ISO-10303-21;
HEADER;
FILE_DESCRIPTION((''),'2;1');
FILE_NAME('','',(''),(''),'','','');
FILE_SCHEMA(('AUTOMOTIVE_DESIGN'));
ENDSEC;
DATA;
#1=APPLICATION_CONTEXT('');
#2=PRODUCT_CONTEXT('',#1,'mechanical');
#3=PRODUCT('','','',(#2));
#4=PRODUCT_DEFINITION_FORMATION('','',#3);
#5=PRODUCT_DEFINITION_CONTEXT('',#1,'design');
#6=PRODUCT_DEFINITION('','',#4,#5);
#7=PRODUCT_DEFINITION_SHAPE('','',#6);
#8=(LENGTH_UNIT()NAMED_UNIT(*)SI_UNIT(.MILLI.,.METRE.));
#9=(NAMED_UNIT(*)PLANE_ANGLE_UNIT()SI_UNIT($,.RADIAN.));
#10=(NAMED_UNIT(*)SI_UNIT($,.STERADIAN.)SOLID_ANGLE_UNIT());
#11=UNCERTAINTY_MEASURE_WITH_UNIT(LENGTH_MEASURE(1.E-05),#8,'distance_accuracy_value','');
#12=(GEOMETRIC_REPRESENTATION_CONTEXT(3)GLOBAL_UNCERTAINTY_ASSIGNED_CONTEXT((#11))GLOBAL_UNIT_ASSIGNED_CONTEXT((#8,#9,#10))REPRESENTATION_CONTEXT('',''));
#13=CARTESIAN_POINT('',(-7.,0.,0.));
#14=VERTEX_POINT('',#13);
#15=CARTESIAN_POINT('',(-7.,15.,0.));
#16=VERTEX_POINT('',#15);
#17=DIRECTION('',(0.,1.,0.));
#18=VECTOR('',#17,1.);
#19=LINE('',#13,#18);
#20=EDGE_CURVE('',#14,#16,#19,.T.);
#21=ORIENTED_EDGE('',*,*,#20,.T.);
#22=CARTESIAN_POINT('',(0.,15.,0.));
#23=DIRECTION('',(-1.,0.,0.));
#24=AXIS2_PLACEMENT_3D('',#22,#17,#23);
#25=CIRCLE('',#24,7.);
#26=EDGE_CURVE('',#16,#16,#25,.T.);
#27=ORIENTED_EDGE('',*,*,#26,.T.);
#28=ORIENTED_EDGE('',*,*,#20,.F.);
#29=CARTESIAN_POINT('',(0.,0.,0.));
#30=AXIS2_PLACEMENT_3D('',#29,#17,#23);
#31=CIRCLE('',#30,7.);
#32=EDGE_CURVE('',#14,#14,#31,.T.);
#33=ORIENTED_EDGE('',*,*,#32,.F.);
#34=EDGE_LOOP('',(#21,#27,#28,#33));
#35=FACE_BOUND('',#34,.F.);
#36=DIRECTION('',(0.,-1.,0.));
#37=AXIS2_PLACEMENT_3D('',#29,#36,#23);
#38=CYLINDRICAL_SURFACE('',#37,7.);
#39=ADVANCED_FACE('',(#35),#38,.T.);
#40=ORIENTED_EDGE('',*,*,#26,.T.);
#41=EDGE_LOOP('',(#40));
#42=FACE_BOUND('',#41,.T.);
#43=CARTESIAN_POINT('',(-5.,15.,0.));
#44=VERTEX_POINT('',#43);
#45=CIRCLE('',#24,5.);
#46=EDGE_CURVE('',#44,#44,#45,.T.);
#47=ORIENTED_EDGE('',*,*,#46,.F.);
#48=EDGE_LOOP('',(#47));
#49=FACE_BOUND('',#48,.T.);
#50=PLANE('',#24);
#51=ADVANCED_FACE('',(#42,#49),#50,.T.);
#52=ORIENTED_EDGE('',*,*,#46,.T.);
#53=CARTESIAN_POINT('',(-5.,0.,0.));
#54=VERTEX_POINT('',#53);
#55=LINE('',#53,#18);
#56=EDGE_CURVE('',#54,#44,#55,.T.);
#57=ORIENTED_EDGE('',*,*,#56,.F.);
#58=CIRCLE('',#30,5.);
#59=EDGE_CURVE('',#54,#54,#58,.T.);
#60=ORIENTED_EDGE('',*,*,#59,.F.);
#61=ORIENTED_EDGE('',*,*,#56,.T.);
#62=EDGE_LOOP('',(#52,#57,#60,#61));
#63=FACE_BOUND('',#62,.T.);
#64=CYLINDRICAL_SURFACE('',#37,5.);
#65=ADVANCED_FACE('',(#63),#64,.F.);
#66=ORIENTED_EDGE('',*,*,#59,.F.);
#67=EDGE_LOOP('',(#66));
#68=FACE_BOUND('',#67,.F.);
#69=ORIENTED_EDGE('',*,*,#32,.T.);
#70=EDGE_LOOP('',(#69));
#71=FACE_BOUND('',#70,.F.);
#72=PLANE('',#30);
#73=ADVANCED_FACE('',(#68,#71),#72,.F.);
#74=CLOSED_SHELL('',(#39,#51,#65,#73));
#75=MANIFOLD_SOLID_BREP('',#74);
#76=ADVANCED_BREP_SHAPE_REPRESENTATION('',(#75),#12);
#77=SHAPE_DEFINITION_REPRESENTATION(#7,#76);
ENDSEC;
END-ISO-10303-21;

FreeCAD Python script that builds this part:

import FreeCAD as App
import Part
import Sketcher
from FreeCAD import Vector
Q = App.Units.Quantity

doc = App.newDocument("Part")
body = doc.addObject("PartDesign::Body", "Body")

sketch1 = doc.addObject("Sketcher::SketchObject", "Sketch")
body.addObject(sketch1)
sketch1.AttachmentSupport = (doc.XZ_Plane, [""])
sketch1.MapMode = "FlatFace"
sketch1.addGeometry([
    Part.Circle(Vector(0, 0, 0), Vector(0, 0, 1), 7),
    Part.Circle(Vector(0, 0, 0), Vector(0, 0, 1), 5),
], False)
sketch1.addConstraint([
    Sketcher.Constraint("Coincident", 0, 3, -1, 1),
    Sketcher.Constraint("Coincident", 1, 3, -1, 1),
    Sketcher.Constraint("Diameter", 1, Q("10 mm")),
    Sketcher.Constraint("Diameter", 0, Q("14 mm")),
])
pad1 = doc.addObject("PartDesign::Pad", "Pad")
body.addObject(pad1)
pad1.Profile = sketch1
pad1.Length = 15
pad1.Reversed = True

doc.recompute()
